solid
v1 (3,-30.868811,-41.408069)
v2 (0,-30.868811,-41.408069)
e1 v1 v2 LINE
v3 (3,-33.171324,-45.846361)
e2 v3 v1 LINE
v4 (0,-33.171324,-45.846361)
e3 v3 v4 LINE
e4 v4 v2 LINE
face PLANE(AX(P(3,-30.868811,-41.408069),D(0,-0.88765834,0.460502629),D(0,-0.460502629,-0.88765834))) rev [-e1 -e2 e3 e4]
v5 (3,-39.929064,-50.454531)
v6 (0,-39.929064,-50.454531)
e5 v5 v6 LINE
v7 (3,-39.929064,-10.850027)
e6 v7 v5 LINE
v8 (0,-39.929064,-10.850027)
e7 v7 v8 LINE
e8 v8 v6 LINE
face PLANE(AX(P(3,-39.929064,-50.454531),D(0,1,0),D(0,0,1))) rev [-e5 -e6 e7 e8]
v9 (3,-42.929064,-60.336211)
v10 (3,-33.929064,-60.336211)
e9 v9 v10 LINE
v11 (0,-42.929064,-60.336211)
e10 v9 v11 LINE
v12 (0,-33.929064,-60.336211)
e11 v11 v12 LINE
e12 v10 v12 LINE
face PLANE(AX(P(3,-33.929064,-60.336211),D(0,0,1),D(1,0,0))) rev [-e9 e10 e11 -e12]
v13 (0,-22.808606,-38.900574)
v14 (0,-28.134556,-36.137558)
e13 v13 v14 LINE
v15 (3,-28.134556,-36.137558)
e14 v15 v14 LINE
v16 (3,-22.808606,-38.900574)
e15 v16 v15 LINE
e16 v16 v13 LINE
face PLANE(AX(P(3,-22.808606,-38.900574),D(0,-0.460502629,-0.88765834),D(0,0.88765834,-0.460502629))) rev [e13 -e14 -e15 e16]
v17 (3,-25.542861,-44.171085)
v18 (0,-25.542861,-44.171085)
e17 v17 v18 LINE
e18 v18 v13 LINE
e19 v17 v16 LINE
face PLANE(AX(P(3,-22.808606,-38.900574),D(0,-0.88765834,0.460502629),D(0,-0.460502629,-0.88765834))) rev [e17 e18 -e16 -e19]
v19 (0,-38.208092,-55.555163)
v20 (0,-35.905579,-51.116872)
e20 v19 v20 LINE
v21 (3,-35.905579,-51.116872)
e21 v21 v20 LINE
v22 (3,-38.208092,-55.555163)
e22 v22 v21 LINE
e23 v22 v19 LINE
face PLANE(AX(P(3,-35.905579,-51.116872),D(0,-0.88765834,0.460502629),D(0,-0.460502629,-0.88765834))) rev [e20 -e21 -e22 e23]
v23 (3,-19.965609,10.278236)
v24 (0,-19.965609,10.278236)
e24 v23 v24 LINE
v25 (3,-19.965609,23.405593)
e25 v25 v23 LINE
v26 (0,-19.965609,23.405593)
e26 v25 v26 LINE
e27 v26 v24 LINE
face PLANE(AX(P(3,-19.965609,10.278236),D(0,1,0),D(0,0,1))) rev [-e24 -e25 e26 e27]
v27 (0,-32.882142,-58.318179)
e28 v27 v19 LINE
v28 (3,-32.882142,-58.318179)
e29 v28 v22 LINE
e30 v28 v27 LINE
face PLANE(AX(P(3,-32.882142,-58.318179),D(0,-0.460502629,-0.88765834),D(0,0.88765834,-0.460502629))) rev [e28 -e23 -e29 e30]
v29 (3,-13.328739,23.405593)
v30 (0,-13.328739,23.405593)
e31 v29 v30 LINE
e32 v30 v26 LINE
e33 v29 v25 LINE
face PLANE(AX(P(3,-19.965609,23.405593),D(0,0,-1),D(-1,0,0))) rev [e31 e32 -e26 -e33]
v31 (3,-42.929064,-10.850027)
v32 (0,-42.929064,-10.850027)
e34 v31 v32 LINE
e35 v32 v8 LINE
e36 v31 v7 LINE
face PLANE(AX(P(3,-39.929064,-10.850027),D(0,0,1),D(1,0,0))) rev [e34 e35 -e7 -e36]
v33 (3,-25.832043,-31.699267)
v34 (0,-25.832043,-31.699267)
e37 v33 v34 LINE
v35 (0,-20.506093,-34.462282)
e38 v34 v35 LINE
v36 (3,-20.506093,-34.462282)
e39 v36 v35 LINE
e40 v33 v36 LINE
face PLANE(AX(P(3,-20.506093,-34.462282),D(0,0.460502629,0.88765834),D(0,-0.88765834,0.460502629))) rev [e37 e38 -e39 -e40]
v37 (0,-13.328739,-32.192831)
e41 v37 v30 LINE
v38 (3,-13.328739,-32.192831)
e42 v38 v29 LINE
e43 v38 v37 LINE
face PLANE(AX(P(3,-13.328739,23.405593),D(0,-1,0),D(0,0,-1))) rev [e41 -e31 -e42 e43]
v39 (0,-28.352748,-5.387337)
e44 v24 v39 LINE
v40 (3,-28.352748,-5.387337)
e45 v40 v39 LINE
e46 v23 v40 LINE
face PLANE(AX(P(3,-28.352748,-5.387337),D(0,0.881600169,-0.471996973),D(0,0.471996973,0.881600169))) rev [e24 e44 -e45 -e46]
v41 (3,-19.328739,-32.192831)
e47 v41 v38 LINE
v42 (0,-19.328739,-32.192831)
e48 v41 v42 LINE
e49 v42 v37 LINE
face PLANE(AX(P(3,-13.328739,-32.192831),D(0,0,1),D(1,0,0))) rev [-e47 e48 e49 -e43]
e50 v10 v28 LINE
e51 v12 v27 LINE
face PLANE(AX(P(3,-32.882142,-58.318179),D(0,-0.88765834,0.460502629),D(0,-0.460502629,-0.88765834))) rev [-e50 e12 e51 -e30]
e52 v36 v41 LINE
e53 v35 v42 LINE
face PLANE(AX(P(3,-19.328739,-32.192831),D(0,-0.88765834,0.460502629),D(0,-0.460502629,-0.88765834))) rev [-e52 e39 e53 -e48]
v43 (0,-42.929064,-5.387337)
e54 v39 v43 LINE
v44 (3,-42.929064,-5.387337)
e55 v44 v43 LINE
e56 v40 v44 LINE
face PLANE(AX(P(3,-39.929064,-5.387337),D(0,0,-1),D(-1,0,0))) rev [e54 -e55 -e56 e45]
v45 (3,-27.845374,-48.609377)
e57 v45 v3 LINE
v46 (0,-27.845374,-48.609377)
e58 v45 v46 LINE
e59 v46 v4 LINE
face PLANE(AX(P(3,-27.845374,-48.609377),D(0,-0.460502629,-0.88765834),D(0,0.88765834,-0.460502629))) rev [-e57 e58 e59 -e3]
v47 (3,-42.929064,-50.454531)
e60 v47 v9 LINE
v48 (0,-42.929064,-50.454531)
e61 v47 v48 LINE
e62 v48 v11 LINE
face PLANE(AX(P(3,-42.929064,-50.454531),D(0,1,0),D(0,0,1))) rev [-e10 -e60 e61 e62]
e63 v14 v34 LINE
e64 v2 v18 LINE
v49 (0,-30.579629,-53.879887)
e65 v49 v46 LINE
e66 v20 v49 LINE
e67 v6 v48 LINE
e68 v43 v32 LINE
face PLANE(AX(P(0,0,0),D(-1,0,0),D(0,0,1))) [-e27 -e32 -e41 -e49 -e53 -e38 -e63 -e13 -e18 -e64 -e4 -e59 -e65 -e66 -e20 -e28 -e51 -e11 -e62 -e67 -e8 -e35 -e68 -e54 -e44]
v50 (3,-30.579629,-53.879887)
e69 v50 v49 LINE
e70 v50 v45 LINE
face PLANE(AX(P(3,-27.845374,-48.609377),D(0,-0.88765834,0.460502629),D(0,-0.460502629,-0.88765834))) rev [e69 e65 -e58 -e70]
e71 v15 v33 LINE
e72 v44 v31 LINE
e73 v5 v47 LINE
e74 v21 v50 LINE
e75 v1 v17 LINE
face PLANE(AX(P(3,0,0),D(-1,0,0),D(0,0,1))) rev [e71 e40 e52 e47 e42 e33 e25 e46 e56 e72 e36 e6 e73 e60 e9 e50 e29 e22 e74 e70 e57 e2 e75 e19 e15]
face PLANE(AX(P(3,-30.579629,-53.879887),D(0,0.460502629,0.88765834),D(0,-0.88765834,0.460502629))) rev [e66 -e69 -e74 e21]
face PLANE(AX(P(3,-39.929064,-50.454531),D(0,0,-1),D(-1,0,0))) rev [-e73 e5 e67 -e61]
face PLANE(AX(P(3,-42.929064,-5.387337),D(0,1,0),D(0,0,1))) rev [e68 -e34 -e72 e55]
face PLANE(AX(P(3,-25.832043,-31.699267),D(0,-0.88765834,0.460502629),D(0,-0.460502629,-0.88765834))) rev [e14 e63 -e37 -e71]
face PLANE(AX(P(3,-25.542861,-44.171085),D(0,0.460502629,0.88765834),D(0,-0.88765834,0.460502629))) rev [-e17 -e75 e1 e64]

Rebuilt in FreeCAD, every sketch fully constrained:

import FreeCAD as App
import Part
import Sketcher

V = App.Vector
Q = App.Units.Quantity


def add_polygon(sketch, points):
    """Adds a closed chain of lines whose ends are joined by coincident constraints."""
    first, n = sketch.GeometryCount, len(points)
    for a, b in zip(points, points[1:] + points[:1]):
        sketch.addGeometry(Part.LineSegment(App.Vector(*a, 0), App.Vector(*b, 0)), False)
    for i in range(n):
        sketch.addConstraint(Sketcher.Constraint("Coincident", first + i, 2, first + (i + 1) % n, 1))

doc = App.newDocument("Part")
body = doc.addObject("PartDesign::Body", "Body")

# Sketch on YZ plane
sketch1 = body.newObject("Sketcher::SketchObject", "Sketch")
sketch1.AttachmentSupport = (doc.getObject("YZ_Plane"), [""])
sketch1.MapMode = "FlatFace"
add_polygon(sketch1, [(-13.3, -32.2), (-13.3, 23.4), (-20, 23.4), (-20, 10.3), (-28.4, -5.4), (-42.9, -5.4), (-42.9, -10.9), (-39.9, -10.9), (-39.9, -50.5), (-42.9, -50.5), (-42.9, -60.3), (-33.9, -60.3), (-32.9, -58.3), (-38.2, -55.6), (-35.9, -51.1), (-30.6, -53.9), (-27.8, -48.6), (-33.2, -45.8), (-30.9, -41.4), (-25.5, -44.2), (-22.8, -38.9), (-28.1, -36.1), (-25.8, -31.7), (-20.5, -34.5), (-19.3, -32.2)])  # lines 0-24
sketch1.addConstraint([
    Sketcher.Constraint("Vertical", 0),
    Sketcher.Constraint("Horizontal", 1),
    Sketcher.Constraint("Vertical", 2),
    Sketcher.Constraint("Horizontal", 4),
    Sketcher.Constraint("Vertical", 5),
    Sketcher.Constraint("Horizontal", 6),
    Sketcher.Constraint("Vertical", 7),
    Sketcher.Constraint("Horizontal", 8),
    Sketcher.Constraint("Vertical", 9),
    Sketcher.Constraint("Horizontal", 10),
    Sketcher.Constraint("Horizontal", 24),
    Sketcher.Constraint("Perpendicular", 11, 12),
    Sketcher.Constraint("Perpendicular", 12, 13),
    Sketcher.Constraint("Perpendicular", 13, 14),
    Sketcher.Constraint("Perpendicular", 14, 15),
    Sketcher.Constraint("Perpendicular", 15, 16),
    Sketcher.Constraint("Perpendicular", 16, 17),
    Sketcher.Constraint("Perpendicular", 17, 18),
    Sketcher.Constraint("Perpendicular", 18, 19),
    Sketcher.Constraint("Perpendicular", 19, 20),
    Sketcher.Constraint("Perpendicular", 20, 21),
    Sketcher.Constraint("Perpendicular", 21, 22),
    Sketcher.Constraint("Perpendicular", 22, 23),
    Sketcher.Constraint("Vertical", 5, 2, 8, 2),
    Sketcher.Constraint("Equal", 12, 14),
    Sketcher.Constraint("Equal", 14, 16),
    Sketcher.Constraint("Equal", 13, 17),
    Sketcher.Constraint("Equal", 16, 18),
    Sketcher.Constraint("Equal", 15, 19),
    Sketcher.Constraint("Equal", 18, 20),
    Sketcher.Constraint("Equal", 17, 21),
    Sketcher.Constraint("Equal", 20, 22),
    Sketcher.Constraint("DistanceX", 6, 1, 6, 2, Q("3 mm")),
    Sketcher.Constraint("DistanceX", 10, 1, 10, 2, Q("9 mm")),
    Sketcher.Constraint("DistanceX", 24, 1, 24, 2, Q("6 mm")),
    Sketcher.Constraint("Distance", 12, Q("6 mm")),
    Sketcher.Constraint("Distance", 13, Q("5 mm")),
    Sketcher.Constraint("DistanceX", 1, 2, 1, 1, Q("6.63687 mm")),
    Sketcher.Constraint("DistanceY", 5, 2, 5, 1, Q("5.46269 mm")),
    Sketcher.Constraint("DistanceY", 9, 2, 9, 1, Q("9.88168 mm")),
    Sketcher.Constraint("DistanceX", 4, 2, 4, 1, Q("14.576316 mm")),
    Sketcher.Constraint("DistanceY", 0, 1, 0, 2, Q("55.598424 mm")),
    Sketcher.Constraint("DistanceY", 2, 2, 2, 1, Q("13.127357 mm")),
    Sketcher.Constraint("DistanceY", 7, 2, 7, 1, Q("39.604504 mm")),
    Sketcher.Constraint("DistanceX", 0, 2, -1, 1, Q("13.328739 mm")),
    Sketcher.Constraint("DistanceY", 7, 2, -1, 1, Q("50.454531 mm")),
    Sketcher.Constraint("DistanceX", 11, 2, -1, 1, Q("32.882142 mm")),
    Sketcher.Constraint("DistanceY", 11, 2, -1, 1, Q("58.318179 mm")),
    Sketcher.Constraint("DistanceX", 12, 2, -1, 1, Q("38.208092 mm")),
    Sketcher.Constraint("DistanceY", 16, 2, -1, 1, Q("45.846361 mm")),
])
pad1 = body.newObject("PartDesign::Pad", "Pad")
pad1.Profile = sketch1
pad1.Length = 3

doc.recompute()
